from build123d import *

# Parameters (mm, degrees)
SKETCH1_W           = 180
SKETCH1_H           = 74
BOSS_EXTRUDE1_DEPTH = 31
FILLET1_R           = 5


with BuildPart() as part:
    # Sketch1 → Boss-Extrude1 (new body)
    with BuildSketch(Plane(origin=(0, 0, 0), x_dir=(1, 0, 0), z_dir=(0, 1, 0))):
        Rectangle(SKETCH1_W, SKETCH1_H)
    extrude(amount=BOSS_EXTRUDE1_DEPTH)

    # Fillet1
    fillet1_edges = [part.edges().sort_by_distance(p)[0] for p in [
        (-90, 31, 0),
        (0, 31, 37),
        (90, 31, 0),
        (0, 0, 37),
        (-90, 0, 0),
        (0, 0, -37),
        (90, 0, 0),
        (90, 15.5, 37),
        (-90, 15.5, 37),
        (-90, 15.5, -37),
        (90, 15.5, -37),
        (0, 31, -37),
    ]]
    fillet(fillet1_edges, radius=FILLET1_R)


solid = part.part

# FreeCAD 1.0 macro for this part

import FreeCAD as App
import Part
import Sketcher
Q = App.Units.Quantity

doc = App.newDocument("Part")
body = doc.addObject("PartDesign::Body", "Body")

# Sketch on XZ plane
sketch1 = body.newObject("Sketcher::SketchObject", "Sketch")
sketch1.AttachmentSupport = (doc.getObject("XZ_Plane"), [""])
sketch1.MapMode = "FlatFace"
sketch1.addGeometry([
    Part.LineSegment(App.Vector(-90, -37, 0), App.Vector(-90, 37, 0)),
    Part.LineSegment(App.Vector(-90, 37, 0), App.Vector(90, 37, 0)),
    Part.LineSegment(App.Vector(90, 37, 0), App.Vector(90, -37, 0)),
    Part.LineSegment(App.Vector(90, -37, 0), App.Vector(-90, -37, 0)),
], False)
sketch1.addConstraint([
    Sketcher.Constraint("Coincident", 0, 2, 1, 1),
    Sketcher.Constraint("Coincident", 1, 2, 2, 1),
    Sketcher.Constraint("Coincident", 2, 2, 3, 1),
    Sketcher.Constraint("Coincident", 3, 2, 0, 1),
    Sketcher.Constraint("Vertical", 0),
    Sketcher.Constraint("Horizontal", 1),
    Sketcher.Constraint("Vertical", 2),
    Sketcher.Constraint("Horizontal", 3),
    Sketcher.Constraint("Symmetric", 0, 2, 2, 2, -1, 1),
    Sketcher.Constraint("DistanceX", 1, 1, 1, 2, Q("180 mm")),
    Sketcher.Constraint("DistanceY", 0, 1, 0, 2, Q("74 mm")),
])
pad1 = body.newObject("PartDesign::Pad", "Pad")
pad1.Profile = sketch1
pad1.Length = 31
pad1.Reversed = True
doc.recompute()

fillet = body.newObject("PartDesign::Fillet", "Fillet")
fillet.Base = (pad1, ["Edge1"])
fillet.UseAllEdges = True
fillet.Radius = 5

doc.recompute()
